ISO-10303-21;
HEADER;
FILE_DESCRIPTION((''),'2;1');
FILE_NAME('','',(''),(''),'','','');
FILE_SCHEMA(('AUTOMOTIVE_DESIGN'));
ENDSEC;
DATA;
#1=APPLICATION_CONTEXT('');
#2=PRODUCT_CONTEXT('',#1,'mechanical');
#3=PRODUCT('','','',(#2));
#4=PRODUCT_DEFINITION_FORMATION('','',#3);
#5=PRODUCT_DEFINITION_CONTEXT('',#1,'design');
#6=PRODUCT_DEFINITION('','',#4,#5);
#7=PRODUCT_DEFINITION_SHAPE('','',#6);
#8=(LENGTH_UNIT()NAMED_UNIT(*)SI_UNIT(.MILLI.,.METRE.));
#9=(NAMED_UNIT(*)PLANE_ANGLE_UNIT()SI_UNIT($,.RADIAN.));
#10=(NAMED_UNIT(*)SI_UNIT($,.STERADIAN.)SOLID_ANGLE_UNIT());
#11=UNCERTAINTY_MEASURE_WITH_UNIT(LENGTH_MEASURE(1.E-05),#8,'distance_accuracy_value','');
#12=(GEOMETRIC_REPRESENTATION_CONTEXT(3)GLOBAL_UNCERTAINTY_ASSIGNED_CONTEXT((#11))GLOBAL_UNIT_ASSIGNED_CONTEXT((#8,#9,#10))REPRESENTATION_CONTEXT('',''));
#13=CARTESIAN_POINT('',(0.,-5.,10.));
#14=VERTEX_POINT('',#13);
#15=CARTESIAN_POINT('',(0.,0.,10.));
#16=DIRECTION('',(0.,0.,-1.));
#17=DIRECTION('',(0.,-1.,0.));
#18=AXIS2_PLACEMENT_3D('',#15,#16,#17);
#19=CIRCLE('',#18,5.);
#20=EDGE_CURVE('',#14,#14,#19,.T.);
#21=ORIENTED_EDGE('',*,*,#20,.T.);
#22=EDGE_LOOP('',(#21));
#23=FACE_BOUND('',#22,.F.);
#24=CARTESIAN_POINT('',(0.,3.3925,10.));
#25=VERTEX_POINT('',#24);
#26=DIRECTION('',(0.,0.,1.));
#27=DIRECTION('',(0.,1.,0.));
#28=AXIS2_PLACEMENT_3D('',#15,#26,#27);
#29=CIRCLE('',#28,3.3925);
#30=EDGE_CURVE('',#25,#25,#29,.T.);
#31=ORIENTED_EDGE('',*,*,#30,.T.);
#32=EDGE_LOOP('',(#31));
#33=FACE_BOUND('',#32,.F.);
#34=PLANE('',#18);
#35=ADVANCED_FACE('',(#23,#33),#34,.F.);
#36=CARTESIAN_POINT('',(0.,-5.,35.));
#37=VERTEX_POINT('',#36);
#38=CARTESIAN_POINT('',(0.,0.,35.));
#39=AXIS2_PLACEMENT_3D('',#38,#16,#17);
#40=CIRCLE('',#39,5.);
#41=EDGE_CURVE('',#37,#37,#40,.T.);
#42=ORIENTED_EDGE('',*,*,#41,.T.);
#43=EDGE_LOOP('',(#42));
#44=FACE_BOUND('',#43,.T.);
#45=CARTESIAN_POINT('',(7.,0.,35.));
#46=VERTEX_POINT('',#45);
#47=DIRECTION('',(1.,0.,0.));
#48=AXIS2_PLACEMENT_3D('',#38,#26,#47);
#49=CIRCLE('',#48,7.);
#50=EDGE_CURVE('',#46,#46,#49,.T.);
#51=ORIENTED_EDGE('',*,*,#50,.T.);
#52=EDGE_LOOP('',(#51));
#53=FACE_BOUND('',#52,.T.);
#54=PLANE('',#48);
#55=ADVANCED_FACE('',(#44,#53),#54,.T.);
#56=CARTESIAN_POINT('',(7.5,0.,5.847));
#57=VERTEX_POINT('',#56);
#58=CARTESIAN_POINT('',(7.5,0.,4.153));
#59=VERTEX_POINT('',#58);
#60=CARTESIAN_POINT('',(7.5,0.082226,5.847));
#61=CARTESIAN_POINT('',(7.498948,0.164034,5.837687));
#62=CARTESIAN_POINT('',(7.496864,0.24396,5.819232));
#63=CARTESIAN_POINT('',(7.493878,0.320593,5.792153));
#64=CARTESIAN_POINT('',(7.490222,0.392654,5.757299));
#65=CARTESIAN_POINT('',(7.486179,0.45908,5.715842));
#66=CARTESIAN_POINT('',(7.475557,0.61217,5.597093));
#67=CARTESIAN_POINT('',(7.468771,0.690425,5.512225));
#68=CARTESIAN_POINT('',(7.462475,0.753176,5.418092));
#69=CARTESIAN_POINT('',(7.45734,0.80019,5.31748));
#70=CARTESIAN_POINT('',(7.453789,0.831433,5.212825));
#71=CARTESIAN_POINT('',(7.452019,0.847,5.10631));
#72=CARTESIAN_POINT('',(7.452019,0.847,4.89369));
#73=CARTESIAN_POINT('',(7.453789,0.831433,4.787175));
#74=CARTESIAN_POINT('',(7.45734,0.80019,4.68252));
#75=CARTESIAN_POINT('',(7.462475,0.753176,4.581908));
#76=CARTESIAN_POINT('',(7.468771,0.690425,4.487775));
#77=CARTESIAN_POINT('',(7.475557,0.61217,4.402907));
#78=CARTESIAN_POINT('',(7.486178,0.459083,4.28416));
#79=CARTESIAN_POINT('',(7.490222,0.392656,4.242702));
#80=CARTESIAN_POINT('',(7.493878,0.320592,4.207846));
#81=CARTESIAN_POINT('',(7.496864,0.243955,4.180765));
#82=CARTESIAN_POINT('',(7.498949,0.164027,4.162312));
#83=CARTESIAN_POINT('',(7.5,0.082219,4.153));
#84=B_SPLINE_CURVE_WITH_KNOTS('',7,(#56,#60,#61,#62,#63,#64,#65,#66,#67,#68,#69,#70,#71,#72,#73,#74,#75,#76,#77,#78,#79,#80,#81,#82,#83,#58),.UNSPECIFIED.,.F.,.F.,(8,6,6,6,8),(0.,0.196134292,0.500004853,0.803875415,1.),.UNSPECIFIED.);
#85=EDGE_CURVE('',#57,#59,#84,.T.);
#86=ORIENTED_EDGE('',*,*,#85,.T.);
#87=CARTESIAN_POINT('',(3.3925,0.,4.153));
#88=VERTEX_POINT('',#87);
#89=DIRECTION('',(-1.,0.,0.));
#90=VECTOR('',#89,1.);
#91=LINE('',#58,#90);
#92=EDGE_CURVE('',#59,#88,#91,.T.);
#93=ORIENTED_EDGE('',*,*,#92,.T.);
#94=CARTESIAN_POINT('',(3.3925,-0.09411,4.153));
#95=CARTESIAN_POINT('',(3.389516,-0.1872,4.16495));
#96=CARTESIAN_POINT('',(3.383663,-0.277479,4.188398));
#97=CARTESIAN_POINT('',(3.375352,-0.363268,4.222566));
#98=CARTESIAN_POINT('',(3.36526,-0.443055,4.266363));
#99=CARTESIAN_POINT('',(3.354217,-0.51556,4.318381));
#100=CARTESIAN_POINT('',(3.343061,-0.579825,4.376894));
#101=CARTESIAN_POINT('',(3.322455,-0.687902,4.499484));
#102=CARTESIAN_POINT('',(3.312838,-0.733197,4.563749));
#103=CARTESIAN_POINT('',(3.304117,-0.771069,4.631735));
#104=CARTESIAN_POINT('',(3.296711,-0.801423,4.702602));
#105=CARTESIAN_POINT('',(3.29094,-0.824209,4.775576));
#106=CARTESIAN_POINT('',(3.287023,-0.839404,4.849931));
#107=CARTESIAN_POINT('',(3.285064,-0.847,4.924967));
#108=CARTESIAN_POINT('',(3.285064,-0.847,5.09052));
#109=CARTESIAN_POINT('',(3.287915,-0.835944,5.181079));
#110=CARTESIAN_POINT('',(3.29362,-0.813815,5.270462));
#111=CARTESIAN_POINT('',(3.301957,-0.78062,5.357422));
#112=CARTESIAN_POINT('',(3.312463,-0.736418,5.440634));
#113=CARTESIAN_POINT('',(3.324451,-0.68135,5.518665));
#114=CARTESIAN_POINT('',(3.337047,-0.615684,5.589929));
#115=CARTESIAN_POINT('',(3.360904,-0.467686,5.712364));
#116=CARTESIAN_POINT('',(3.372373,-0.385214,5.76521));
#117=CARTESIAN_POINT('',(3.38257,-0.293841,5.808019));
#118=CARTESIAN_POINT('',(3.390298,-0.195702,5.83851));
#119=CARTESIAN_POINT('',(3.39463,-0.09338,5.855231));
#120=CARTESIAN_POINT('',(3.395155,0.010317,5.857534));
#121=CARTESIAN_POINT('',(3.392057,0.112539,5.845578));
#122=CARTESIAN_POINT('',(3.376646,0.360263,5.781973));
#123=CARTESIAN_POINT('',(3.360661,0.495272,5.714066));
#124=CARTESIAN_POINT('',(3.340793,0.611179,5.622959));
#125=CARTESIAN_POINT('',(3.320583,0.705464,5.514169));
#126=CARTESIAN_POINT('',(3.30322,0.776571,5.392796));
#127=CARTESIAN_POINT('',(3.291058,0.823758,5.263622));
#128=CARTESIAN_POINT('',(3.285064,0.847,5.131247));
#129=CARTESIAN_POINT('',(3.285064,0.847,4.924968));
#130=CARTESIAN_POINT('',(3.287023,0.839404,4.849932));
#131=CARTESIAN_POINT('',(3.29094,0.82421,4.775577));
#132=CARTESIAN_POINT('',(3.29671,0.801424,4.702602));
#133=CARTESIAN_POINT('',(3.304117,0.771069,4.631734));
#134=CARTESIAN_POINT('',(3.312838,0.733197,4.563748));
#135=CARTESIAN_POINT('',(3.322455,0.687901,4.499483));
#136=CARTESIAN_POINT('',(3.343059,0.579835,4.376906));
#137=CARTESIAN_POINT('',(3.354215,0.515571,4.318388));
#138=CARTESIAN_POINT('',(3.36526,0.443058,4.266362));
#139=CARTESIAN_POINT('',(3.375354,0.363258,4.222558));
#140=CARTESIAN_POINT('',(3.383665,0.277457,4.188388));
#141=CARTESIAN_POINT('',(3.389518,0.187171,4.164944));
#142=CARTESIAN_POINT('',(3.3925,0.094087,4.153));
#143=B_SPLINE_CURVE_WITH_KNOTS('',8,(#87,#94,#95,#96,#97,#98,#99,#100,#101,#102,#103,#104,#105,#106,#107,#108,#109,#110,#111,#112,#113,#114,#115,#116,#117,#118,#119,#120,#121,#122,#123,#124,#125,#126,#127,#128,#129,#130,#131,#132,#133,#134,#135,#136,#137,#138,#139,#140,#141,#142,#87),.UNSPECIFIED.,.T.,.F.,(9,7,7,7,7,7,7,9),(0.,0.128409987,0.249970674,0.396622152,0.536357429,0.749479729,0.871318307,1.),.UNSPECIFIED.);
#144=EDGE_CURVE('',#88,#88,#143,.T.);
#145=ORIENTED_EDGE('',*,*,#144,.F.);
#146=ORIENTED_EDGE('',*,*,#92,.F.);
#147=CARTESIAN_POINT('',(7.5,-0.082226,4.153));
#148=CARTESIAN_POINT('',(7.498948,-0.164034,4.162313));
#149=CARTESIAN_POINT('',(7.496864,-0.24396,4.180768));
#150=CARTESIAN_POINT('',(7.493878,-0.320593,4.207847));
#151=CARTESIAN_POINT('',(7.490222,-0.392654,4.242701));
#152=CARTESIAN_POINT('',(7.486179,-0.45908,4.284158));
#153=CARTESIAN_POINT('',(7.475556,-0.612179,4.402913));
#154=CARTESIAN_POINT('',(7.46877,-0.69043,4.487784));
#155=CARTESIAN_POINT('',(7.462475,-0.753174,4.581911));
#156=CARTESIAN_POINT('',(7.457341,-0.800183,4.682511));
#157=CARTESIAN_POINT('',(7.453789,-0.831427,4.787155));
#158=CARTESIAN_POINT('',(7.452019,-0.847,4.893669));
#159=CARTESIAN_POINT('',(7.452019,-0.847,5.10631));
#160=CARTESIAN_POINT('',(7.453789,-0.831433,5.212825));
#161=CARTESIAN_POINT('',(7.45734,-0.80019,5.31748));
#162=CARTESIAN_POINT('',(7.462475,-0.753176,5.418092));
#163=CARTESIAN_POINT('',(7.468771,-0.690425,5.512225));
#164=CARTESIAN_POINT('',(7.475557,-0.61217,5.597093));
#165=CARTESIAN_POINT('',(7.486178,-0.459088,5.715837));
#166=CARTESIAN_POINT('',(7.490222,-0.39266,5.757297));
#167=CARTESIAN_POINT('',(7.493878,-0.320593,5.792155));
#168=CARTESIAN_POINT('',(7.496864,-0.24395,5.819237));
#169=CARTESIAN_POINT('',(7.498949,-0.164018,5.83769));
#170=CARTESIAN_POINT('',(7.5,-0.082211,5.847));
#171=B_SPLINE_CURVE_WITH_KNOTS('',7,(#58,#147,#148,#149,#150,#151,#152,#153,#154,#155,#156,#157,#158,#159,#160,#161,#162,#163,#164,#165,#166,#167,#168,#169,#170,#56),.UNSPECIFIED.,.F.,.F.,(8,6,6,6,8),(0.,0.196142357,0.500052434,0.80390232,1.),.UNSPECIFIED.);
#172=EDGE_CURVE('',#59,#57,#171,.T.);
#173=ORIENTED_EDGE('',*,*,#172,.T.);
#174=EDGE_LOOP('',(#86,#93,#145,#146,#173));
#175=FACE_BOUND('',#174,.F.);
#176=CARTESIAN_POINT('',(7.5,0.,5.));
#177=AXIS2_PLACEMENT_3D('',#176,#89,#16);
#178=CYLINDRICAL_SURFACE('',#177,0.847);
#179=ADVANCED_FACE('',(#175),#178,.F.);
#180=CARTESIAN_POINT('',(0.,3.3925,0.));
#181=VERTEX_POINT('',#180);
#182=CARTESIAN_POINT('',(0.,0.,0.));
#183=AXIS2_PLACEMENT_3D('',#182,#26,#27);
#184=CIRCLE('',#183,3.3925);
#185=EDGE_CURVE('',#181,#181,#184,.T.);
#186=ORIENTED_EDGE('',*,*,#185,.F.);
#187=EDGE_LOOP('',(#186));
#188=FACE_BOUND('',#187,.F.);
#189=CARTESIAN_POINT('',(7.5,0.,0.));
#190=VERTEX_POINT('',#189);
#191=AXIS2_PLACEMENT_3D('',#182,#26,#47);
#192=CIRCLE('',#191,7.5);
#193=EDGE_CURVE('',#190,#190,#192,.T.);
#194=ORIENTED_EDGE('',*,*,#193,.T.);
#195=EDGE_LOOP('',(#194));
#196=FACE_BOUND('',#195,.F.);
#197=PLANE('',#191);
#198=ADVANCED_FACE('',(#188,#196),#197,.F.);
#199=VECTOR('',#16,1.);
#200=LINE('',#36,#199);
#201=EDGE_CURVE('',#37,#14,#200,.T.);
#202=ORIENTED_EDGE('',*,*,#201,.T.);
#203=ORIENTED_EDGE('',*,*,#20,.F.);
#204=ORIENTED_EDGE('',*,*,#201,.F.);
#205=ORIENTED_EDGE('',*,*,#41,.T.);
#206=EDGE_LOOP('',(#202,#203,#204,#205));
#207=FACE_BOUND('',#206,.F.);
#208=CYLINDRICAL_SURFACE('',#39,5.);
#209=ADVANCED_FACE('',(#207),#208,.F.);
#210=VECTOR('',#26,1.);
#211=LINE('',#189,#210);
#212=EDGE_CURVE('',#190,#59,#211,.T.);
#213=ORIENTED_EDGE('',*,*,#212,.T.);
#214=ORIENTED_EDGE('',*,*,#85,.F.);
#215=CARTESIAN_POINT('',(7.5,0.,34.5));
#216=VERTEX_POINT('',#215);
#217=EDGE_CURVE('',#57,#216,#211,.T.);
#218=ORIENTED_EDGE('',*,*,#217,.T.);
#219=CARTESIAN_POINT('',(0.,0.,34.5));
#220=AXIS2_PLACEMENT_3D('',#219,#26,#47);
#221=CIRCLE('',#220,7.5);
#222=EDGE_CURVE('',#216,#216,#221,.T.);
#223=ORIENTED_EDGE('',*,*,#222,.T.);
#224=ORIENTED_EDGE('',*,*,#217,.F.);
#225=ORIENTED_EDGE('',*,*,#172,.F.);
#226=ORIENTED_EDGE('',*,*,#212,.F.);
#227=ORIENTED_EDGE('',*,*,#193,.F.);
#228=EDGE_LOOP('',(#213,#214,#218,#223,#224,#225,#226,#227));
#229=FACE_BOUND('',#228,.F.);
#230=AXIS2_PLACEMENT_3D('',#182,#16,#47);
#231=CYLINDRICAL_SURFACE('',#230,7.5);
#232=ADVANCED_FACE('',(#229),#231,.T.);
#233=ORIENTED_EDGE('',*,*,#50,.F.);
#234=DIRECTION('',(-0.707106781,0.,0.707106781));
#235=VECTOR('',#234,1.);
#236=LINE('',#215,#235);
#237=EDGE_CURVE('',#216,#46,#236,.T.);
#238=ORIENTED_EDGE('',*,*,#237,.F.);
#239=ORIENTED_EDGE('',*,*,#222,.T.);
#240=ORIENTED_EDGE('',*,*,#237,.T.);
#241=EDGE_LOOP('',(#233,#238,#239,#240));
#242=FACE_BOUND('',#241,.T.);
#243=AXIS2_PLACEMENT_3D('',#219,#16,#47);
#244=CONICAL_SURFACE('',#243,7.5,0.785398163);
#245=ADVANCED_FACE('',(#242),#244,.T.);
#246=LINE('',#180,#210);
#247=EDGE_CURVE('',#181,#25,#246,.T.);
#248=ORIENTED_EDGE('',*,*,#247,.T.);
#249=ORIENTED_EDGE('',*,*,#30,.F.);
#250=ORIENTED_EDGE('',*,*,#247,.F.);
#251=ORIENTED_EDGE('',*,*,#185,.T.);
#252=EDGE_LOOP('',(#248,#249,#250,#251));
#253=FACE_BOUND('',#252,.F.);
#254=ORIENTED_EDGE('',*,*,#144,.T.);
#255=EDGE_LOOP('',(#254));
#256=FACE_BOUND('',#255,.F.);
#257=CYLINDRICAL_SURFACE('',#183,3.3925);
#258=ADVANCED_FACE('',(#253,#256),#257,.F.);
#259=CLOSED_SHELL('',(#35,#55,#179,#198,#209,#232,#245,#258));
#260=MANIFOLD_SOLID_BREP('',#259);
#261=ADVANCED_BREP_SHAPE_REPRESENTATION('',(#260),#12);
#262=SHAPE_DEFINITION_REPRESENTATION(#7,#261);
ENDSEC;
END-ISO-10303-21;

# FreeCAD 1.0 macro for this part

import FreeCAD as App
import Part
import Sketcher

V = App.Vector


def edges_at(feature, points):
    """Names of the edges that pass closest to the given points."""
    edges = feature.Shape.Edges
    near = lambda p: min(range(len(edges)), key=lambda i: edges[i].distToShape(Part.Vertex(*p))[0])
    return sorted({f"Edge{near(p) + 1}" for p in points})

doc = App.newDocument("Part")
body = doc.addObject("PartDesign::Body", "Body")

# Sketch on XY plane
sketch1 = doc.addObject("Sketcher::SketchObject", "Sketch")
body.addObject(sketch1)
sketch1.AttachmentSupport = (doc.XY_Plane, [""])
sketch1.MapMode = "FlatFace"
sketch1.addGeometry(Part.Circle(V(0, 0, 0), V(0, 0, 1), 7.5), False)
sketch1.addConstraint(Sketcher.Constraint("Coincident", 0, 3, -1, 1))
sketch1.addConstraint(Sketcher.Constraint("Diameter", 0, 15.0))
pad1 = doc.addObject("PartDesign::Pad", "Pad")
body.addObject(pad1)
pad1.Profile = sketch1
pad1.Length = 35

# Sketch on XY plane
sketch2 = doc.addObject("Sketcher::SketchObject", "Sketch001")
body.addObject(sketch2)
sketch2.AttachmentSupport = (doc.XY_Plane, [""])
sketch2.MapMode = "FlatFace"
sketch2.addGeometry(Part.Circle(V(0, 0, 0), V(0, 0, 1), 3.3925), False)
sketch2.addConstraint(Sketcher.Constraint("Coincident", 0, 3, -1, 1))
sketch2.addConstraint(Sketcher.Constraint("Diameter", 0, 6.785))
doc.recompute()
hole = doc.addObject("PartDesign::Hole", "Hole")
body.addObject(hole)
hole.Profile = sketch2
hole.ThreadType = "None"
hole.Diameter = 6.785
hole.DepthType = "ThroughAll"
hole.Reversed = True

# Sketch on XY plane
sketch3 = doc.addObject("Sketcher::SketchObject", "Sketch002")
body.addObject(sketch3)
sketch3.AttachmentSupport = (doc.XY_Plane, [""])
sketch3.MapMode = "FlatFace"
sketch3.AttachmentOffset = App.Placement(V(0, 0, 35), App.Rotation())
sketch3.addGeometry(Part.Circle(V(0, 0, 0), V(0, 0, 1), 5), False)
sketch3.addConstraint(Sketcher.Constraint("Coincident", 0, 3, -1, 1))
sketch3.addConstraint(Sketcher.Constraint("Diameter", 0, 10.0))
doc.recompute()
hole2 = doc.addObject("PartDesign::Hole", "Hole001")
body.addObject(hole2)
hole2.Profile = sketch3
hole2.ThreadType = "None"
hole2.Diameter = 10
hole2.DepthType = "Dimension"
hole2.Depth = 25
hole2.DrillPoint = "Flat"
doc.recompute()

chamfer = doc.addObject("PartDesign::Chamfer", "Chamfer")
body.addObject(chamfer)
chamfer.Base = (hole2, edges_at(hole2, [(-7.5, 0, 35)]))
chamfer.Size = 0.5

# Sketch on YZ plane
sketch4 = doc.addObject("Sketcher::SketchObject", "Sketch003")
body.addObject(sketch4)
sketch4.AttachmentSupport = (doc.YZ_Plane, [""])
sketch4.MapMode = "FlatFace"
sketch4.AttachmentOffset = App.Placement(V(0, 0, 7.5), App.Rotation())
sketch4.addGeometry(Part.Circle(V(0, 5, 0), V(0, 0, 1), 0.847), False)
sketch4.addConstraint(Sketcher.Constraint("PointOnObject", 0, 3, -2))
sketch4.addConstraint(Sketcher.Constraint("Diameter", 0, 1.694))
sketch4.addConstraint(Sketcher.Constraint("DistanceY", -1, 1, 0, 3, 5.0))
doc.recompute()
hole3 = doc.addObject("PartDesign::Hole", "Hole002")
body.addObject(hole3)
hole3.Profile = sketch4
hole3.ThreadType = "None"
hole3.Diameter = 1.694
hole3.DepthType = "Dimension"
hole3.Depth = 7.5
hole3.DrillPoint = "Flat"

doc.recompute()
